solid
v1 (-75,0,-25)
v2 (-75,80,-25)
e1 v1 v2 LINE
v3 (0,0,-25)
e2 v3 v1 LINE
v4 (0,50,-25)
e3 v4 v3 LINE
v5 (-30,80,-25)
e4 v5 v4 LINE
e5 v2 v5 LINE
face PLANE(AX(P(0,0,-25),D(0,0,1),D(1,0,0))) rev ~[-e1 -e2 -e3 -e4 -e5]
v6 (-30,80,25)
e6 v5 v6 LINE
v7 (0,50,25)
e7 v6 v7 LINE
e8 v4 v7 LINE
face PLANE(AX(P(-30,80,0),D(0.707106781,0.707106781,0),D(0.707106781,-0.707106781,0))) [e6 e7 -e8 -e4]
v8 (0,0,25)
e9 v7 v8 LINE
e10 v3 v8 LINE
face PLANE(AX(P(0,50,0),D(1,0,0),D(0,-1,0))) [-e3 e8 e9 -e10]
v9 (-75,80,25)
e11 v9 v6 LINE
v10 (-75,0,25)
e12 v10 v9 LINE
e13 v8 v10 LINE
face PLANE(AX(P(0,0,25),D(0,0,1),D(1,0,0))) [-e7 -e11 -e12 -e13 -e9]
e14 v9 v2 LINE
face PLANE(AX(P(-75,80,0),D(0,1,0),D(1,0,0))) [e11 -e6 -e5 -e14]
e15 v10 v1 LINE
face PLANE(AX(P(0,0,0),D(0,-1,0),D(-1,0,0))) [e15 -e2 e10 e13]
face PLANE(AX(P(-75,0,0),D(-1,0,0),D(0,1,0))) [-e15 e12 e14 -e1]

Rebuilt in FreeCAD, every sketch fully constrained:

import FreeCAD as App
import Part
import Sketcher
from FreeCAD import Vector
Q = App.Units.Quantity


def add_polygon(sketch, points):
    """Adds a closed chain of lines whose ends are joined by coincident constraints."""
    first, n = sketch.GeometryCount, len(points)
    for a, b in zip(points, points[1:] + points[:1]):
        sketch.addGeometry(Part.LineSegment(App.Vector(*a, 0), App.Vector(*b, 0)), False)
    for i in range(n):
        sketch.addConstraint(Sketcher.Constraint("Coincident", first + i, 2, first + (i + 1) % n, 1))

doc = App.newDocument("Part")
body = doc.addObject("PartDesign::Body", "Body")

# Sketch on XY plane
sketch1 = doc.addObject("Sketcher::SketchObject", "Sketch")
body.addObject(sketch1)
sketch1.AttachmentSupport = (doc.XY_Plane, [""])
sketch1.MapMode = "FlatFace"
add_polygon(sketch1, [(-75, 0), (0, 0), (0, 50), (-30, 80), (-75, 80)])  # lines 0-4
sketch1.addConstraint([
    Sketcher.Constraint("Horizontal", 0),
    Sketcher.Constraint("Vertical", 1),
    Sketcher.Constraint("Horizontal", 3),
    Sketcher.Constraint("Vertical", 4),
    Sketcher.Constraint("Coincident", 0, 2, -1, 1),
    Sketcher.Constraint("DistanceX", 0, 1, 0, 2, Q("75 mm")),
    Sketcher.Constraint("DistanceY", 1, 1, 1, 2, Q("50 mm")),
    Sketcher.Constraint("DistanceY", 4, 2, 4, 1, Q("80 mm")),
    Sketcher.Constraint("Angle", 2, Q("135 deg")),
])
pad1 = doc.addObject("PartDesign::Pad", "Pad")
body.addObject(pad1)
pad1.Profile = sketch1
pad1.Length = 50
pad1.Midplane = True

doc.recompute()
